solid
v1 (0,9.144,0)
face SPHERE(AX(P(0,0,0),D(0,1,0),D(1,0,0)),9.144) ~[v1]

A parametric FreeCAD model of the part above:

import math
import FreeCAD as App
import Part
import Sketcher
Q = App.Units.Quantity

doc = App.newDocument("Part")
params = doc.addObject("Spreadsheet::Sheet", "Params")
for row, (alias, value) in enumerate([
    ("sketch1_radius", "0.36 in"),
    ("revolution_angle", "360 deg"),
], start=1):
    params.set(f"A{row}", alias)
    params.set(f"B{row}", "=" + value)
    params.setAlias(f"B{row}", alias)

body = doc.addObject("PartDesign::Body", "Body")

# Sketch on XY plane
sketch1 = body.newObject("Sketcher::SketchObject", "Sketch")
sketch1.AttachmentSupport = (doc.getObject("XY_Plane"), [""])
sketch1.MapMode = "FlatFace"
sketch1.addGeometry([
    Part.LineSegment(App.Vector(0, 9, 0), App.Vector(0, -9, 0)),
    Part.ArcOfCircle(Part.Circle(App.Vector(0, 0, 0), App.Vector(0, 0, 1), 9), math.radians(-90), math.radians(90)),
], False)
sketch1.addConstraint([
    Sketcher.Constraint("Coincident", 0, 1, 1, 2),
    Sketcher.Constraint("Coincident", 1, 1, 0, 2),
    Sketcher.Constraint("Vertical", 0),
    Sketcher.Constraint("Coincident", 1, 3, -1, 1),
    Sketcher.Constraint("PointOnObject", 0, 1, -2),
    Sketcher.Constraint("Radius", 1, Q("0.36 in")),
])
sketch1.setExpression("Constraints[5]", "Params.sketch1_radius")
revolution = body.newObject("PartDesign::Revolution", "Revolution")
revolution.Profile = sketch1
revolution.ReferenceAxis = (sketch1, ["V_Axis"])
revolution.setExpression("Angle", "Params.revolution_angle")

doc.recompute()
